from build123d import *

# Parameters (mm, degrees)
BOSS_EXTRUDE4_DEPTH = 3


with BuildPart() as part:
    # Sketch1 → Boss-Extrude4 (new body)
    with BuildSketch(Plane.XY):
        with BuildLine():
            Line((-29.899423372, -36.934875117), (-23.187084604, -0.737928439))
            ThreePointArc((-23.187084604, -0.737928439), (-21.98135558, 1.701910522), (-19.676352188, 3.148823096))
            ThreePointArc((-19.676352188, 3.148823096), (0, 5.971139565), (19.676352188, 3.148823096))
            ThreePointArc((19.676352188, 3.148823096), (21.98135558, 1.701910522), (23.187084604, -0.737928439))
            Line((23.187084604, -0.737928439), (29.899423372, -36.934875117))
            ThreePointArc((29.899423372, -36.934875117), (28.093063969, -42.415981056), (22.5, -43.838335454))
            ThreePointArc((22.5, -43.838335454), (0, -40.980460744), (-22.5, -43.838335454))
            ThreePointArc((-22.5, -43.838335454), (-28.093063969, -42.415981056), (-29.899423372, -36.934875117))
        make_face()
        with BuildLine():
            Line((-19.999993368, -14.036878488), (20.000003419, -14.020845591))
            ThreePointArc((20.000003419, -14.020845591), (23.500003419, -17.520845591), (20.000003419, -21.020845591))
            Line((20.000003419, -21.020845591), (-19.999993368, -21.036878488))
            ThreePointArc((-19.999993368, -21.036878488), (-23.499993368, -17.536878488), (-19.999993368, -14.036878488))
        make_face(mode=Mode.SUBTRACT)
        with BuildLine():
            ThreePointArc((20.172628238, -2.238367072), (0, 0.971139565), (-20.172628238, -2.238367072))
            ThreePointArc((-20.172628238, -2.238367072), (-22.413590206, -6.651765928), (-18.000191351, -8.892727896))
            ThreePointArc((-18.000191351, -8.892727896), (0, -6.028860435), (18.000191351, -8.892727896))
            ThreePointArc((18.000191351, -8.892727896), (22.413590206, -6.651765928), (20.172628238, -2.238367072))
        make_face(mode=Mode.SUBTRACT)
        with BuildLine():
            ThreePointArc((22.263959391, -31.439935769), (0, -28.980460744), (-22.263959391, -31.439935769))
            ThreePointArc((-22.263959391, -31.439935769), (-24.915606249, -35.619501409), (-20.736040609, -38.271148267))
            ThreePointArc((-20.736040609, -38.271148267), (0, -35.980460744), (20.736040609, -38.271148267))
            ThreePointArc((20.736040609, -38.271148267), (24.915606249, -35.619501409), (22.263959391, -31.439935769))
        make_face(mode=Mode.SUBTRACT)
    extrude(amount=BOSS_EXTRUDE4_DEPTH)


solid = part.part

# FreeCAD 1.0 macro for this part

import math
import FreeCAD as App
import Part
import Sketcher

doc = App.newDocument("Part")
body = doc.addObject("PartDesign::Body", "Body")

# Sketch on XY plane
sketch1 = doc.addObject("Sketcher::SketchObject", "Sketch")
body.addObject(sketch1)
sketch1.AttachmentSupport = (doc.XY_Plane, [""])
sketch1.MapMode = "FlatFace"
sketch1.addGeometry(Part.LineSegment(App.Vector(-23.2, -0.7, 0), App.Vector(-29.9, -36.9, 0)), False)
sketch1.addGeometry(Part.ArcOfCircle(Part.Circle(App.Vector(-24, -38, 0), App.Vector(0, 0, 1), 6), math.radians(169), math.radians(284)), False)
sketch1.addGeometry(Part.ArcOfCircle(Part.Circle(App.Vector(0, -131, 0), App.Vector(0, 0, 1), 90), math.radians(76), math.radians(104)), False)
sketch1.addGeometry(Part.ArcOfCircle(Part.Circle(App.Vector(24, -38, 0), App.Vector(0, 0, 1), 6), math.radians(-104), math.radians(11)), False)
sketch1.addGeometry(Part.LineSegment(App.Vector(29.9, -36.9, 0), App.Vector(23.2, -0.7, 0)), False)
sketch1.addGeometry(Part.ArcOfCircle(Part.Circle(App.Vector(18.3, -1.6, 0), App.Vector(0, 0, 1), 5), math.radians(11), math.radians(74)), False)
sketch1.addGeometry(Part.ArcOfCircle(Part.Circle(App.Vector(0, -64, 0), App.Vector(0, 0, 1), 70), math.radians(74), math.radians(106)), False)
sketch1.addGeometry(Part.ArcOfCircle(Part.Circle(App.Vector(-18.3, -1.6, 0), App.Vector(0, 0, 1), 5), math.radians(106), math.radians(169)), False)
sketch1.addGeometry(Part.ArcOfCircle(Part.Circle(App.Vector(21.5, -34.9, 0), App.Vector(0, 0, 1), 3.5), math.radians(-103), math.radians(77)), False)
sketch1.addGeometry(Part.ArcOfCircle(Part.Circle(App.Vector(0, -131, 0), App.Vector(0, 0, 1), 95), math.radians(77), math.radians(103)), False)
sketch1.addGeometry(Part.ArcOfCircle(Part.Circle(App.Vector(-21.5, -34.9, 0), App.Vector(0, 0, 1), 3.5), math.radians(103), math.radians(283)), False)
sketch1.addGeometry(Part.ArcOfCircle(Part.Circle(App.Vector(0, -131, 0), App.Vector(0, 0, 1), 102), math.radians(77), math.radians(103)), False)
sketch1.addGeometry(Part.LineSegment(App.Vector(-20, -14, 0), App.Vector(20, -14, 0)), False)
sketch1.addGeometry(Part.ArcOfCircle(Part.Circle(App.Vector(20, -17.5, 0), App.Vector(0, 0, 1), 3.5), math.radians(-90), math.radians(90)), False)
sketch1.addGeometry(Part.LineSegment(App.Vector(20, -21, 0), App.Vector(-20, -21, 0)), False)
sketch1.addGeometry(Part.ArcOfCircle(Part.Circle(App.Vector(-20, -17.5, 0), App.Vector(0, 0, 1), 3.5), math.radians(90), math.radians(270)), False)
sketch1.addGeometry(Part.ArcOfCircle(Part.Circle(App.Vector(19.1, -5.6, 0), App.Vector(0, 0, 1), 3.5), math.radians(-108), math.radians(72)), False)
sketch1.addGeometry(Part.ArcOfCircle(Part.Circle(App.Vector(0, -64, 0), App.Vector(0, 0, 1), 58), math.radians(72), math.radians(108)), False)
sketch1.addGeometry(Part.ArcOfCircle(Part.Circle(App.Vector(-19.1, -5.6, 0), App.Vector(0, 0, 1), 3.5), math.radians(108), math.radians(288)), False)
sketch1.addGeometry(Part.ArcOfCircle(Part.Circle(App.Vector(0, -64, 0), App.Vector(0, 0, 1), 65), math.radians(72), math.radians(108)), False)
sketch1.addConstraint(Sketcher.Constraint("Tangent", 0, 2, 1, 1))
sketch1.addConstraint(Sketcher.Constraint("Tangent", 1, 2, 2, 2))
sketch1.addConstraint(Sketcher.Constraint("Tangent", 2, 1, 3, 1))
sketch1.addConstraint(Sketcher.Constraint("Tangent", 3, 2, 4, 1))
sketch1.addConstraint(Sketcher.Constraint("Tangent", 4, 2, 5, 1))
sketch1.addConstraint(Sketcher.Constraint("Tangent", 5, 2, 6, 1))
sketch1.addConstraint(Sketcher.Constraint("Tangent", 6, 2, 7, 1))
sketch1.addConstraint(Sketcher.Constraint("Tangent", 7, 2, 0, 1))
sketch1.addConstraint(Sketcher.Constraint("Tangent", 8, 1, 9, 1))
sketch1.addConstraint(Sketcher.Constraint("Tangent", 9, 2, 10, 2))
sketch1.addConstraint(Sketcher.Constraint("Tangent", 10, 1, 11, 2))
sketch1.addConstraint(Sketcher.Constraint("Tangent", 11, 1, 8, 2))
sketch1.addConstraint(Sketcher.Constraint("Coincident", 12, 2, 13, 2))
sketch1.addConstraint(Sketcher.Constraint("Coincident", 13, 1, 14, 1))
sketch1.addConstraint(Sketcher.Constraint("Coincident", 14, 2, 15, 2))
sketch1.addConstraint(Sketcher.Constraint("Coincident", 15, 1, 12, 1))
sketch1.addConstraint(Sketcher.Constraint("Tangent", 16, 1, 17, 1))
sketch1.addConstraint(Sketcher.Constraint("Tangent", 17, 2, 18, 2))
sketch1.addConstraint(Sketcher.Constraint("Tangent", 18, 1, 19, 2))
sketch1.addConstraint(Sketcher.Constraint("Tangent", 19, 1, 16, 2))
sketch1.addConstraint(Sketcher.Constraint("Coincident", 9, 3, 2, 3))
sketch1.addConstraint(Sketcher.Constraint("Coincident", 11, 3, 2, 3))
sketch1.addConstraint(Sketcher.Constraint("Coincident", 17, 3, 6, 3))
sketch1.addConstraint(Sketcher.Constraint("Coincident", 19, 3, 6, 3))
sketch1.addConstraint(Sketcher.Constraint("Equal", 1, 3))
sketch1.addConstraint(Sketcher.Constraint("Equal", 5, 7))
sketch1.addConstraint(Sketcher.Constraint("Equal", 10, 13))
sketch1.addConstraint(Sketcher.Constraint("Equal", 13, 15))
sketch1.addConstraint(Sketcher.Constraint("Equal", 15, 16))
sketch1.addConstraint(Sketcher.Constraint("Symmetric", 1, 3, 3, 3, -2))
sketch1.addConstraint(Sketcher.Constraint("Symmetric", 5, 3, 7, 3, -2))
sketch1.addConstraint(Sketcher.Constraint("Horizontal", 8, 3, 10, 3))
sketch1.addConstraint(Sketcher.Constraint("Horizontal", 16, 3, 18, 3))
sketch1.addConstraint(Sketcher.Constraint("Vertical", 13, 3, 12, 2))
sketch1.addConstraint(Sketcher.Constraint("Vertical", 12, 2, 13, 1))
sketch1.addConstraint(Sketcher.Constraint("Vertical", 15, 3, 14, 2))
sketch1.addConstraint(Sketcher.Constraint("Vertical", 14, 2, 15, 1))
sketch1.addConstraint(Sketcher.Constraint("Radius", 1, 6.0))
sketch1.addConstraint(Sketcher.Constraint("Radius", 2, 90.0))
sketch1.addConstraint(Sketcher.Constraint("Radius", 5, 5.0))
sketch1.addConstraint(Sketcher.Constraint("Radius", 6, 70.0))
sketch1.addConstraint(Sketcher.Constraint("Radius", 9, 95.0))
sketch1.addConstraint(Sketcher.Constraint("Radius", 11, 102.0))
sketch1.addConstraint(Sketcher.Constraint("Radius", 17, 58.0))
sketch1.addConstraint(Sketcher.Constraint("Distance", 12, 40.0))
sketch1.addConstraint(Sketcher.Constraint("DistanceX", 1, 3, -1, 1, 24.0))
sketch1.addConstraint(Sketcher.Constraint("DistanceY", 6, 3, 1, 3, 26.0))
sketch1.addConstraint(Sketcher.Constraint("DistanceX", 10, 3, 8, 3, 43.0))
sketch1.addConstraint(Sketcher.Constraint("DistanceX", -1, 1, 5, 3, 18.270898))
sketch1.addConstraint(Sketcher.Constraint("DistanceX", 7, 3, 13, 3, 38.270902))
sketch1.addConstraint(Sketcher.Constraint("DistanceY", 13, 3, 16, 3, 11.955298))
sketch1.addConstraint(Sketcher.Constraint("DistanceY", 15, 3, 6, 2, 20.685702))
sketch1.addConstraint(Sketcher.Constraint("DistanceY", 16, 1, 4, 2, 8.154799))
sketch1.addConstraint(Sketcher.Constraint("DistanceY", 1, 3, -1, 1, 38.02886))
pad1 = doc.addObject("PartDesign::Pad", "Pad")
body.addObject(pad1)
pad1.Profile = sketch1
pad1.Length = 3

doc.recompute()
